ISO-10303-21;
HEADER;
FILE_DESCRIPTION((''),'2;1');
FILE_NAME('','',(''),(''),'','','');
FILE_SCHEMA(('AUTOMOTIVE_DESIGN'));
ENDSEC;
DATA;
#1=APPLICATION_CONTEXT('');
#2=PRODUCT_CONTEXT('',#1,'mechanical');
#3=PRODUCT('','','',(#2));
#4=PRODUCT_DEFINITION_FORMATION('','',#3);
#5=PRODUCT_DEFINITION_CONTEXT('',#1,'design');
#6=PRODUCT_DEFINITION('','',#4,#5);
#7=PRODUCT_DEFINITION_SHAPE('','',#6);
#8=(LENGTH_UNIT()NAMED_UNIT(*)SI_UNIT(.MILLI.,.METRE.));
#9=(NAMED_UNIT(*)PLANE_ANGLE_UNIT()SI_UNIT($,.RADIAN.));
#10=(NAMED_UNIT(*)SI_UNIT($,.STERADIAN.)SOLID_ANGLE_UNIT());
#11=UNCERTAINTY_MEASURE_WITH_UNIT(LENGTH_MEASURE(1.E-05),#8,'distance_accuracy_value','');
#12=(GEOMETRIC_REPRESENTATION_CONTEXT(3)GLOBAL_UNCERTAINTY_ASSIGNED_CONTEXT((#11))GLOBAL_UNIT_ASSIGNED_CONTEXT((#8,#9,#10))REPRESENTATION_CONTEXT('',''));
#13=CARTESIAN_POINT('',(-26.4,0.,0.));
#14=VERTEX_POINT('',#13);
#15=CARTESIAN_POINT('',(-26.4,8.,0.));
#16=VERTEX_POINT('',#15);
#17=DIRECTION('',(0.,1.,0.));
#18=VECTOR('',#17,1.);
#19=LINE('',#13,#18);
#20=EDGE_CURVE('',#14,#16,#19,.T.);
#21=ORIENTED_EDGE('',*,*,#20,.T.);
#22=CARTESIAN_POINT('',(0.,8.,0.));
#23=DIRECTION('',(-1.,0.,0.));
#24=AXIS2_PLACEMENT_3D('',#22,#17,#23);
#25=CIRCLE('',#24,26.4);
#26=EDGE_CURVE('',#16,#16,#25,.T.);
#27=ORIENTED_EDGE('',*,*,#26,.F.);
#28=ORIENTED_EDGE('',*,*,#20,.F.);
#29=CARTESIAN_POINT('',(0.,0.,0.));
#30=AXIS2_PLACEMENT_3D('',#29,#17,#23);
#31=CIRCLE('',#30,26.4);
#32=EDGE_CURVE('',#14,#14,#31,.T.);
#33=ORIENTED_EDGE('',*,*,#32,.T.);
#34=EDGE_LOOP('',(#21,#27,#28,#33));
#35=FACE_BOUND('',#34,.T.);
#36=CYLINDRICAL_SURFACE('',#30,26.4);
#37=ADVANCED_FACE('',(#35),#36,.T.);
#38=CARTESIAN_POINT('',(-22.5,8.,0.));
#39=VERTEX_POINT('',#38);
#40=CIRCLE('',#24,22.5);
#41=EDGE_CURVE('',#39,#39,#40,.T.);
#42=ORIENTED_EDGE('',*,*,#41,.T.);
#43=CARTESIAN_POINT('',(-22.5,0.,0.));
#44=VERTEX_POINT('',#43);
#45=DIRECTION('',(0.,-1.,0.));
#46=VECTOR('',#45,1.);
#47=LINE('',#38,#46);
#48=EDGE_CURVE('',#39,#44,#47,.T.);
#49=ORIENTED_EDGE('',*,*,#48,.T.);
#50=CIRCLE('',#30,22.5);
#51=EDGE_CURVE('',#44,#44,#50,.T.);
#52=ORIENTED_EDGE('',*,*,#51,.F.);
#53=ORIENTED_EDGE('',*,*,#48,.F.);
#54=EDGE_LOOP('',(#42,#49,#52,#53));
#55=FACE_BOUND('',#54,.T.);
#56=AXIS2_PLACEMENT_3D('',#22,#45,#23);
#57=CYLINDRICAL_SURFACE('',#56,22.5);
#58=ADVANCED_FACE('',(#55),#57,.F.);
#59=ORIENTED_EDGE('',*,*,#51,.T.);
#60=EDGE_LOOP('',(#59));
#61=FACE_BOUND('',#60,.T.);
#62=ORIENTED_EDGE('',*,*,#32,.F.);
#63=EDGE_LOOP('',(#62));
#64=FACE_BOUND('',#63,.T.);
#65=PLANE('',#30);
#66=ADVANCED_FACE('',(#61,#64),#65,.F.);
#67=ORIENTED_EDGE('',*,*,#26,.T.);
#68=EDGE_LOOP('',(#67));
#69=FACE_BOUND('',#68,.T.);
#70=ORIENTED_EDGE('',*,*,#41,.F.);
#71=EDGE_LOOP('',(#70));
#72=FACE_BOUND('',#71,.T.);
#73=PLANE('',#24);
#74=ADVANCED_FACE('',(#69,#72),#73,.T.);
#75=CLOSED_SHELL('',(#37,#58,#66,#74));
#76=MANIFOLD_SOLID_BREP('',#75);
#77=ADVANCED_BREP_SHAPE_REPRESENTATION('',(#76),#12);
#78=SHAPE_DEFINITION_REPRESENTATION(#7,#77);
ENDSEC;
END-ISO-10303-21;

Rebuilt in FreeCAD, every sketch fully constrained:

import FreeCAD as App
import Part
import Sketcher


def add_polygon(sketch, points):
    """Adds a closed chain of lines whose ends are joined by coincident constraints."""
    first, n = sketch.GeometryCount, len(points)
    for a, b in zip(points, points[1:] + points[:1]):
        sketch.addGeometry(Part.LineSegment(App.Vector(*a, 0), App.Vector(*b, 0)), False)
    for i in range(n):
        sketch.addConstraint(Sketcher.Constraint("Coincident", first + i, 2, first + (i + 1) % n, 1))

doc = App.newDocument("Part")
body = doc.addObject("PartDesign::Body", "Body")

sketch1 = body.newObject("Sketcher::SketchObject", "Sketch")
sketch1.AttachmentSupport = (doc.getObject("XY_Plane"), [""])
sketch1.MapMode = "FlatFace"
add_polygon(sketch1, [(-26.4, 0), (-22.5, 0), (-22.5, 8), (-26.4, 8)])
sketch1.addConstraint([
    Sketcher.Constraint("Horizontal", 0),
    Sketcher.Constraint("Vertical", 1),
    Sketcher.Constraint("Horizontal", 2),
    Sketcher.Constraint("Vertical", 3),
    Sketcher.Constraint("PointOnObject", 0, 2, -1),
    Sketcher.Constraint("DistanceY", 1, 1, 1, 2, 8.0),
    Sketcher.Constraint("DistanceX", 0, 1, 0, 2, 3.9),
    Sketcher.Constraint("DistanceX", 0, 2, -1, 1, 22.5),
])
revolution = body.newObject("PartDesign::Revolution", "Revolution")
revolution.Profile = sketch1
revolution.ReferenceAxis = (sketch1, ["V_Axis"])
revolution.Angle = 360

doc.recompute()
